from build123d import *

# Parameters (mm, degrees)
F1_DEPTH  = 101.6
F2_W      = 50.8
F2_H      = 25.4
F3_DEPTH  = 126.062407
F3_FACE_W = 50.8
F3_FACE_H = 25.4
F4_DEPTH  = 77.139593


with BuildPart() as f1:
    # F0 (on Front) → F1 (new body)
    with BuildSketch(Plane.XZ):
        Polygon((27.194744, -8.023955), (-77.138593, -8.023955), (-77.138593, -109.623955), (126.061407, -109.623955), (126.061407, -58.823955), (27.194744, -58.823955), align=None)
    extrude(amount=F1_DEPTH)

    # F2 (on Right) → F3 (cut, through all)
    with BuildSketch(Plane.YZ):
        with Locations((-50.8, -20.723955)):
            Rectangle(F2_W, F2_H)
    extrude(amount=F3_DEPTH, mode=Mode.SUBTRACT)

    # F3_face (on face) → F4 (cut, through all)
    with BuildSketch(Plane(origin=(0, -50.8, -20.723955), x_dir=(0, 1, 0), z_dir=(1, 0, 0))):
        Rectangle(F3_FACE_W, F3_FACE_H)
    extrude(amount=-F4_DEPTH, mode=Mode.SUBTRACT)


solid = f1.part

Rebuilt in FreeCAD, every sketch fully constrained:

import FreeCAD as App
import Part
import Sketcher
Q = App.Units.Quantity


def add_polygon(sketch, points):
    """Adds a closed chain of lines whose ends are joined by coincident constraints."""
    first, n = sketch.GeometryCount, len(points)
    for a, b in zip(points, points[1:] + points[:1]):
        sketch.addGeometry(Part.LineSegment(App.Vector(*a, 0), App.Vector(*b, 0)), False)
    for i in range(n):
        sketch.addConstraint(Sketcher.Constraint("Coincident", first + i, 2, first + (i + 1) % n, 1))

doc = App.newDocument("Part")
body = doc.addObject("PartDesign::Body", "Body")

sketch1 = body.newObject("Sketcher::SketchObject", "Sketch")
sketch1.AttachmentSupport = (doc.getObject("XZ_Plane"), [""])
sketch1.MapMode = "FlatFace"
add_polygon(sketch1, [(27, -8), (-77, -8), (-77, -110), (126, -110), (126, -59), (27, -59)])
sketch1.addConstraint([
    Sketcher.Constraint("Horizontal", 0),
    Sketcher.Constraint("Vertical", 1),
    Sketcher.Constraint("Horizontal", 2),
    Sketcher.Constraint("Vertical", 3),
    Sketcher.Constraint("Horizontal", 4),
    Sketcher.Constraint("Vertical", 5),
    Sketcher.Constraint("Equal", 3, 5),
    Sketcher.Constraint("DistanceX", 2, 1, 2, 2, Q("8 in")),
    Sketcher.Constraint("DistanceY", 1, 2, 1, 1, Q("4 in")),
    Sketcher.Constraint("DistanceX", 0, 2, 0, 1, 104.333337),
    Sketcher.Constraint("DistanceX", 0, 2, -1, 1, 77.138593),
    Sketcher.Constraint("DistanceY", 0, 2, -1, 1, 8.023955),
])
pad1 = body.newObject("PartDesign::Pad", "Pad")
pad1.Profile = sketch1
pad1.Length = Q("4 in")

sketch2 = body.newObject("Sketcher::SketchObject", "Sketch001")
sketch2.AttachmentSupport = (doc.getObject("YZ_Plane"), [""])
sketch2.MapMode = "FlatFace"
add_polygon(sketch2, [(-76, -8), (-76, -33), (-25, -33), (-25, -8)])
sketch2.addConstraint([
    Sketcher.Constraint("Vertical", 0),
    Sketcher.Constraint("Horizontal", 1),
    Sketcher.Constraint("Vertical", 2),
    Sketcher.Constraint("Horizontal", 3),
    Sketcher.Constraint("DistanceX", 1, 1, 1, 2, Q("2 in")),
    Sketcher.Constraint("DistanceY", 0, 2, 0, 1, Q("1 in")),
    Sketcher.Constraint("DistanceX", 0, 2, -1, 1, Q("3 in")),
    Sketcher.Constraint("DistanceY", 0, 2, -1, 1, 33.423955),
])
pocket1 = body.newObject("PartDesign::Pocket", "Pocket")
pocket1.Profile = sketch2
pocket1.Type = "ThroughAll"
pocket1.Reversed = True

sketch3 = body.newObject("Sketcher::SketchObject", "Sketch002")
sketch3.AttachmentSupport = (doc.getObject("YZ_Plane"), [""])
sketch3.MapMode = "FlatFace"
add_polygon(sketch3, [(-76, -8), (-76, -33), (-25, -33), (-25, -8)])
sketch3.addConstraint([
    Sketcher.Constraint("Vertical", 0),
    Sketcher.Constraint("Horizontal", 1),
    Sketcher.Constraint("Vertical", 2),
    Sketcher.Constraint("Horizontal", 3),
    Sketcher.Constraint("DistanceX", 1, 1, 1, 2, Q("2 in")),
    Sketcher.Constraint("DistanceY", 0, 2, 0, 1, Q("1 in")),
    Sketcher.Constraint("DistanceX", 0, 2, -1, 1, Q("3 in")),
    Sketcher.Constraint("DistanceY", 0, 2, -1, 1, 33.423955),
])
pocket2 = body.newObject("PartDesign::Pocket", "Pocket001")
pocket2.Profile = sketch3
pocket2.Type = "ThroughAll"

doc.recompute()
